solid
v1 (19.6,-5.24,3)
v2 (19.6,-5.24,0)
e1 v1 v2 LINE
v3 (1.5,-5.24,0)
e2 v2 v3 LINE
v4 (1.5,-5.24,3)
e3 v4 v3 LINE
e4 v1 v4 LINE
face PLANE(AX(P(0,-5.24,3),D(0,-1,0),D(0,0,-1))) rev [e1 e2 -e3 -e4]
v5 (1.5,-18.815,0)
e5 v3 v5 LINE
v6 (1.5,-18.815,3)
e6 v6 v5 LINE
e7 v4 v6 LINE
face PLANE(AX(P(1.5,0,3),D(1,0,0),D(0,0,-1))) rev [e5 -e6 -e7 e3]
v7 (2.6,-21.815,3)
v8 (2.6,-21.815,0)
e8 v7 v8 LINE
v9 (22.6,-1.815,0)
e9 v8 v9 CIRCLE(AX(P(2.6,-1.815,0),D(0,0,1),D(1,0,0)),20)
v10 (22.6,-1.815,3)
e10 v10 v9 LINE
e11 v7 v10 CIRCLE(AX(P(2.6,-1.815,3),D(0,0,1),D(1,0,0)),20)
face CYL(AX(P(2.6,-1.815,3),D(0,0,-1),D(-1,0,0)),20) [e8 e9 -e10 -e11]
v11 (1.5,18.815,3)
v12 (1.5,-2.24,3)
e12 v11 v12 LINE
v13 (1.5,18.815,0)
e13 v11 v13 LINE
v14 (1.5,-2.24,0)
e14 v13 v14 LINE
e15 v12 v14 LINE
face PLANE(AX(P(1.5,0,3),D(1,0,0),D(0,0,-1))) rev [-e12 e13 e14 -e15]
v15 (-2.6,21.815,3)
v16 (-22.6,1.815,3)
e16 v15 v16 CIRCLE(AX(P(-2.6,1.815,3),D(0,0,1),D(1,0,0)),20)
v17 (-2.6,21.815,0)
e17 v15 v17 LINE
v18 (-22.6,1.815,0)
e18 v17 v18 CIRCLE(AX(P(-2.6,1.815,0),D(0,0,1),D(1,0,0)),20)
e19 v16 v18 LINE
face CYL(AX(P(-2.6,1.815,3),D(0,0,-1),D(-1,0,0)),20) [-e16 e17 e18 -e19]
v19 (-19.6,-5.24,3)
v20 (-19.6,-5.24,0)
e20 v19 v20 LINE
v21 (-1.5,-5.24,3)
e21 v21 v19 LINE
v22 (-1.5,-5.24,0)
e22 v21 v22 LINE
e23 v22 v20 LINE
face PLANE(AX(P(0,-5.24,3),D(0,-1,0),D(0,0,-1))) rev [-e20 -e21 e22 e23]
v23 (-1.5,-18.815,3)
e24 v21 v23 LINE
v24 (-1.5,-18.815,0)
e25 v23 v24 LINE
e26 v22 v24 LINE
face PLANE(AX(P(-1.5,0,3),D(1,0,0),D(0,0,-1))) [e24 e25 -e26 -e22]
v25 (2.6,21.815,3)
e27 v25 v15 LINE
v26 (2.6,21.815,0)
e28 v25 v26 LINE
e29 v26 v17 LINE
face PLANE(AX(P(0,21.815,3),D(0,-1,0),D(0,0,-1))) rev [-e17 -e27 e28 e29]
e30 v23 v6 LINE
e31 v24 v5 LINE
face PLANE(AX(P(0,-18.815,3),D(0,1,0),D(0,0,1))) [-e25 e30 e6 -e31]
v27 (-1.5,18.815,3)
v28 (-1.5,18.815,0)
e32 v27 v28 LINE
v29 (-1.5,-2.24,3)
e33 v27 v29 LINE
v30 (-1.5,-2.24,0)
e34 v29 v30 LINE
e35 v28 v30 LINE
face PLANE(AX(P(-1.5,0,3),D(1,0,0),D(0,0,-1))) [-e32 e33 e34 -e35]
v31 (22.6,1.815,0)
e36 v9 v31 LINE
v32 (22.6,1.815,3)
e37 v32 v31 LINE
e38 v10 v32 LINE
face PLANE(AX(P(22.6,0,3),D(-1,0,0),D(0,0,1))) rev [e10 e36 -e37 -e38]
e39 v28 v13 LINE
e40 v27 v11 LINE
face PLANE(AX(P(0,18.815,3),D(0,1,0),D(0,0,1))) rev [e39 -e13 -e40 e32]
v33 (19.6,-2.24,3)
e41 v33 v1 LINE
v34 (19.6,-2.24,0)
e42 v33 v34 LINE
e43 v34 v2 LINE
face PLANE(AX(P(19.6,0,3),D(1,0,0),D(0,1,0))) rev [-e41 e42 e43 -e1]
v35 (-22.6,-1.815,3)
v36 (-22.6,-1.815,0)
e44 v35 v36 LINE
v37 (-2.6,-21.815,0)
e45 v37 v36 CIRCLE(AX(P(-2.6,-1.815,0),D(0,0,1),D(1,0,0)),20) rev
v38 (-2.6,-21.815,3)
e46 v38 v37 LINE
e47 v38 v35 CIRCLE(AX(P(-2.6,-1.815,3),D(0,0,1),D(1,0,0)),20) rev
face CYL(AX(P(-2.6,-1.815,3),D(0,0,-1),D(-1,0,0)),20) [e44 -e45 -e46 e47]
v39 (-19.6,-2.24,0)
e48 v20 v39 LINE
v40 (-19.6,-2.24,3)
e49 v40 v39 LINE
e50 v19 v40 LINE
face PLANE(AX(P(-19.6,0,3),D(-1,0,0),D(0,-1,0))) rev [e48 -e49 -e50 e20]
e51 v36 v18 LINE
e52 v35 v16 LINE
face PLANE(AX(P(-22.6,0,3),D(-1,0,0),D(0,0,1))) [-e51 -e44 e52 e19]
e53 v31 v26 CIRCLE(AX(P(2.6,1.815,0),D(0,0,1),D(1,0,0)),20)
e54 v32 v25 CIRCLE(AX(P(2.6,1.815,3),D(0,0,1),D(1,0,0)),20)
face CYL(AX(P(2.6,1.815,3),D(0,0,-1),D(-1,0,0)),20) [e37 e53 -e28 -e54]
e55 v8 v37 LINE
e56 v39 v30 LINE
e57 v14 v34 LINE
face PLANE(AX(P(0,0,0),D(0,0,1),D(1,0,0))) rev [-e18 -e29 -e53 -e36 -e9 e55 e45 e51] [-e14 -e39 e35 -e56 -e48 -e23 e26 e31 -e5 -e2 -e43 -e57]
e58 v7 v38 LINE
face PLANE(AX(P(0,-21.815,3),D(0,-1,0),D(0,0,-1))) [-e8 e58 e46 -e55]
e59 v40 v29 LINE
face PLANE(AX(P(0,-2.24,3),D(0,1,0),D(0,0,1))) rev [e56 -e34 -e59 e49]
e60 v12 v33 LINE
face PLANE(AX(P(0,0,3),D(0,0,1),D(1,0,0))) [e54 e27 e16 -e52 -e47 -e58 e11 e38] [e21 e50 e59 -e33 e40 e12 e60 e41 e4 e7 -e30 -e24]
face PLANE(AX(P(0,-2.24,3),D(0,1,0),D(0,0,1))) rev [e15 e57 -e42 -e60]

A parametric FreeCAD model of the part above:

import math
import FreeCAD as App
import Part
import Sketcher

V = App.Vector
Q = App.Units.Quantity

doc = App.newDocument("Part")
body = doc.addObject("PartDesign::Body", "Body")

# Sketch on XY plane
sketch1 = body.newObject("Sketcher::SketchObject", "Sketch")
sketch1.AttachmentSupport = (doc.getObject("XY_Plane"), [""])
sketch1.MapMode = "FlatFace"
sketch1.addGeometry([
    Part.LineSegment(V(-2.6, -21.8, 0), V(2.6, -21.8, 0)),  # 0
    Part.ArcOfCircle(Part.Circle(V(2.6, -1.8, 0), V(0, 0, 1), 20), math.radians(-90), math.radians(0)),  # 1
    Part.LineSegment(V(22.6, -1.8, 0), V(22.6, 1.8, 0)),  # 2
    Part.ArcOfCircle(Part.Circle(V(2.6, 1.8, 0), V(0, 0, 1), 20), math.radians(0), math.radians(90)),  # 3
    Part.LineSegment(V(2.6, 21.8, 0), V(-2.6, 21.8, 0)),  # 4
    Part.ArcOfCircle(Part.Circle(V(-2.6, 1.8, 0), V(0, 0, 1), 20), math.radians(90), math.radians(180)),  # 5
    Part.LineSegment(V(-22.6, 1.8, 0), V(-22.6, -1.8, 0)),  # 6
    Part.ArcOfCircle(Part.Circle(V(-2.6, -1.8, 0), V(0, 0, 1), 20), math.radians(180), math.radians(270)),  # 7
    Part.LineSegment(V(-1.5, -5.2, 0), V(-19.6, -5.2, 0)),  # 8
    Part.LineSegment(V(-19.6, -5.2, 0), V(-19.6, -2.2, 0)),  # 9
    Part.LineSegment(V(-19.6, -2.2, 0), V(-1.5, -2.2, 0)),  # 10
    Part.LineSegment(V(-1.5, -2.2, 0), V(-1.5, 18.8, 0)),  # 11
    Part.LineSegment(V(-1.5, 18.8, 0), V(1.5, 18.8, 0)),  # 12
    Part.LineSegment(V(1.5, 18.8, 0), V(1.5, -2.2, 0)),  # 13
    Part.LineSegment(V(1.5, -2.2, 0), V(19.6, -2.2, 0)),  # 14
    Part.LineSegment(V(19.6, -2.2, 0), V(19.6, -5.2, 0)),  # 15
    Part.LineSegment(V(19.6, -5.2, 0), V(1.5, -5.2, 0)),  # 16
    Part.LineSegment(V(1.5, -5.2, 0), V(1.5, -18.8, 0)),  # 17
    Part.LineSegment(V(1.5, -18.8, 0), V(-1.5, -18.8, 0)),  # 18
    Part.LineSegment(V(-1.5, -18.8, 0), V(-1.5, -5.2, 0)),  # 19
], False)
sketch1.addConstraint([
    Sketcher.Constraint("Tangent", 0, 2, 1, 1),
    Sketcher.Constraint("Tangent", 1, 2, 2, 1),
    Sketcher.Constraint("Tangent", 2, 2, 3, 1),
    Sketcher.Constraint("Tangent", 3, 2, 4, 1),
    Sketcher.Constraint("Tangent", 4, 2, 5, 1),
    Sketcher.Constraint("Tangent", 5, 2, 6, 1),
    Sketcher.Constraint("Tangent", 6, 2, 7, 1),
    Sketcher.Constraint("Tangent", 7, 2, 0, 1),
    Sketcher.Constraint("Coincident", 8, 2, 9, 1),
    Sketcher.Constraint("Coincident", 9, 2, 10, 1),
    Sketcher.Constraint("Coincident", 10, 2, 11, 1),
    Sketcher.Constraint("Coincident", 11, 2, 12, 1),
    Sketcher.Constraint("Coincident", 12, 2, 13, 1),
    Sketcher.Constraint("Coincident", 13, 2, 14, 1),
    Sketcher.Constraint("Coincident", 14, 2, 15, 1),
    Sketcher.Constraint("Coincident", 15, 2, 16, 1),
    Sketcher.Constraint("Coincident", 16, 2, 17, 1),
    Sketcher.Constraint("Coincident", 17, 2, 18, 1),
    Sketcher.Constraint("Coincident", 18, 2, 19, 1),
    Sketcher.Constraint("Coincident", 19, 2, 8, 1),
    Sketcher.Constraint("Horizontal", 0),
    Sketcher.Constraint("Vertical", 2),
    Sketcher.Constraint("Horizontal", 4),
    Sketcher.Constraint("Vertical", 6),
    Sketcher.Constraint("Horizontal", 8),
    Sketcher.Constraint("Vertical", 9),
    Sketcher.Constraint("Horizontal", 10),
    Sketcher.Constraint("Vertical", 11),
    Sketcher.Constraint("Horizontal", 12),
    Sketcher.Constraint("Vertical", 13),
    Sketcher.Constraint("Horizontal", 14),
    Sketcher.Constraint("Vertical", 15),
    Sketcher.Constraint("Horizontal", 16),
    Sketcher.Constraint("Vertical", 17),
    Sketcher.Constraint("Horizontal", 18),
    Sketcher.Constraint("Vertical", 19),
    Sketcher.Constraint("Equal", 1, 3),
    Sketcher.Constraint("Equal", 3, 5),
    Sketcher.Constraint("Equal", 5, 7),
    Sketcher.Constraint("Symmetric", 1, 3, 5, 3, -1, 1),
    Sketcher.Constraint("Symmetric", 11, 2, 17, 2, -1, 1),
    Sketcher.Constraint("Symmetric", 10, 2, 13, 2, -2),
    Sketcher.Constraint("Symmetric", 8, 2, 15, 2, -2),
    Sketcher.Constraint("Vertical", 11, 2, 18, 2),
    Sketcher.Constraint("Equal", 18, 9),
    Sketcher.Constraint("Radius", 1, Q("20 mm")),
    Sketcher.Constraint("DistanceX", 12, 1, 12, 2, Q("3 mm")),
    Sketcher.Constraint("DistanceX", 0, 1, 0, 2, Q("5.2 mm")),
    Sketcher.Constraint("DistanceX", 8, 2, 8, 1, Q("18.1 mm")),
    Sketcher.Constraint("DistanceY", 11, 2, 4, 2, Q("3 mm")),
    Sketcher.Constraint("DistanceY", 2, 1, 2, 2, Q("3.63 mm")),
    Sketcher.Constraint("DistanceY", 11, 1, 11, 2, Q("21.055 mm")),
])
pad1 = body.newObject("PartDesign::Pad", "Pad")
pad1.Profile = sketch1
pad1.Length = 3

doc.recompute()
